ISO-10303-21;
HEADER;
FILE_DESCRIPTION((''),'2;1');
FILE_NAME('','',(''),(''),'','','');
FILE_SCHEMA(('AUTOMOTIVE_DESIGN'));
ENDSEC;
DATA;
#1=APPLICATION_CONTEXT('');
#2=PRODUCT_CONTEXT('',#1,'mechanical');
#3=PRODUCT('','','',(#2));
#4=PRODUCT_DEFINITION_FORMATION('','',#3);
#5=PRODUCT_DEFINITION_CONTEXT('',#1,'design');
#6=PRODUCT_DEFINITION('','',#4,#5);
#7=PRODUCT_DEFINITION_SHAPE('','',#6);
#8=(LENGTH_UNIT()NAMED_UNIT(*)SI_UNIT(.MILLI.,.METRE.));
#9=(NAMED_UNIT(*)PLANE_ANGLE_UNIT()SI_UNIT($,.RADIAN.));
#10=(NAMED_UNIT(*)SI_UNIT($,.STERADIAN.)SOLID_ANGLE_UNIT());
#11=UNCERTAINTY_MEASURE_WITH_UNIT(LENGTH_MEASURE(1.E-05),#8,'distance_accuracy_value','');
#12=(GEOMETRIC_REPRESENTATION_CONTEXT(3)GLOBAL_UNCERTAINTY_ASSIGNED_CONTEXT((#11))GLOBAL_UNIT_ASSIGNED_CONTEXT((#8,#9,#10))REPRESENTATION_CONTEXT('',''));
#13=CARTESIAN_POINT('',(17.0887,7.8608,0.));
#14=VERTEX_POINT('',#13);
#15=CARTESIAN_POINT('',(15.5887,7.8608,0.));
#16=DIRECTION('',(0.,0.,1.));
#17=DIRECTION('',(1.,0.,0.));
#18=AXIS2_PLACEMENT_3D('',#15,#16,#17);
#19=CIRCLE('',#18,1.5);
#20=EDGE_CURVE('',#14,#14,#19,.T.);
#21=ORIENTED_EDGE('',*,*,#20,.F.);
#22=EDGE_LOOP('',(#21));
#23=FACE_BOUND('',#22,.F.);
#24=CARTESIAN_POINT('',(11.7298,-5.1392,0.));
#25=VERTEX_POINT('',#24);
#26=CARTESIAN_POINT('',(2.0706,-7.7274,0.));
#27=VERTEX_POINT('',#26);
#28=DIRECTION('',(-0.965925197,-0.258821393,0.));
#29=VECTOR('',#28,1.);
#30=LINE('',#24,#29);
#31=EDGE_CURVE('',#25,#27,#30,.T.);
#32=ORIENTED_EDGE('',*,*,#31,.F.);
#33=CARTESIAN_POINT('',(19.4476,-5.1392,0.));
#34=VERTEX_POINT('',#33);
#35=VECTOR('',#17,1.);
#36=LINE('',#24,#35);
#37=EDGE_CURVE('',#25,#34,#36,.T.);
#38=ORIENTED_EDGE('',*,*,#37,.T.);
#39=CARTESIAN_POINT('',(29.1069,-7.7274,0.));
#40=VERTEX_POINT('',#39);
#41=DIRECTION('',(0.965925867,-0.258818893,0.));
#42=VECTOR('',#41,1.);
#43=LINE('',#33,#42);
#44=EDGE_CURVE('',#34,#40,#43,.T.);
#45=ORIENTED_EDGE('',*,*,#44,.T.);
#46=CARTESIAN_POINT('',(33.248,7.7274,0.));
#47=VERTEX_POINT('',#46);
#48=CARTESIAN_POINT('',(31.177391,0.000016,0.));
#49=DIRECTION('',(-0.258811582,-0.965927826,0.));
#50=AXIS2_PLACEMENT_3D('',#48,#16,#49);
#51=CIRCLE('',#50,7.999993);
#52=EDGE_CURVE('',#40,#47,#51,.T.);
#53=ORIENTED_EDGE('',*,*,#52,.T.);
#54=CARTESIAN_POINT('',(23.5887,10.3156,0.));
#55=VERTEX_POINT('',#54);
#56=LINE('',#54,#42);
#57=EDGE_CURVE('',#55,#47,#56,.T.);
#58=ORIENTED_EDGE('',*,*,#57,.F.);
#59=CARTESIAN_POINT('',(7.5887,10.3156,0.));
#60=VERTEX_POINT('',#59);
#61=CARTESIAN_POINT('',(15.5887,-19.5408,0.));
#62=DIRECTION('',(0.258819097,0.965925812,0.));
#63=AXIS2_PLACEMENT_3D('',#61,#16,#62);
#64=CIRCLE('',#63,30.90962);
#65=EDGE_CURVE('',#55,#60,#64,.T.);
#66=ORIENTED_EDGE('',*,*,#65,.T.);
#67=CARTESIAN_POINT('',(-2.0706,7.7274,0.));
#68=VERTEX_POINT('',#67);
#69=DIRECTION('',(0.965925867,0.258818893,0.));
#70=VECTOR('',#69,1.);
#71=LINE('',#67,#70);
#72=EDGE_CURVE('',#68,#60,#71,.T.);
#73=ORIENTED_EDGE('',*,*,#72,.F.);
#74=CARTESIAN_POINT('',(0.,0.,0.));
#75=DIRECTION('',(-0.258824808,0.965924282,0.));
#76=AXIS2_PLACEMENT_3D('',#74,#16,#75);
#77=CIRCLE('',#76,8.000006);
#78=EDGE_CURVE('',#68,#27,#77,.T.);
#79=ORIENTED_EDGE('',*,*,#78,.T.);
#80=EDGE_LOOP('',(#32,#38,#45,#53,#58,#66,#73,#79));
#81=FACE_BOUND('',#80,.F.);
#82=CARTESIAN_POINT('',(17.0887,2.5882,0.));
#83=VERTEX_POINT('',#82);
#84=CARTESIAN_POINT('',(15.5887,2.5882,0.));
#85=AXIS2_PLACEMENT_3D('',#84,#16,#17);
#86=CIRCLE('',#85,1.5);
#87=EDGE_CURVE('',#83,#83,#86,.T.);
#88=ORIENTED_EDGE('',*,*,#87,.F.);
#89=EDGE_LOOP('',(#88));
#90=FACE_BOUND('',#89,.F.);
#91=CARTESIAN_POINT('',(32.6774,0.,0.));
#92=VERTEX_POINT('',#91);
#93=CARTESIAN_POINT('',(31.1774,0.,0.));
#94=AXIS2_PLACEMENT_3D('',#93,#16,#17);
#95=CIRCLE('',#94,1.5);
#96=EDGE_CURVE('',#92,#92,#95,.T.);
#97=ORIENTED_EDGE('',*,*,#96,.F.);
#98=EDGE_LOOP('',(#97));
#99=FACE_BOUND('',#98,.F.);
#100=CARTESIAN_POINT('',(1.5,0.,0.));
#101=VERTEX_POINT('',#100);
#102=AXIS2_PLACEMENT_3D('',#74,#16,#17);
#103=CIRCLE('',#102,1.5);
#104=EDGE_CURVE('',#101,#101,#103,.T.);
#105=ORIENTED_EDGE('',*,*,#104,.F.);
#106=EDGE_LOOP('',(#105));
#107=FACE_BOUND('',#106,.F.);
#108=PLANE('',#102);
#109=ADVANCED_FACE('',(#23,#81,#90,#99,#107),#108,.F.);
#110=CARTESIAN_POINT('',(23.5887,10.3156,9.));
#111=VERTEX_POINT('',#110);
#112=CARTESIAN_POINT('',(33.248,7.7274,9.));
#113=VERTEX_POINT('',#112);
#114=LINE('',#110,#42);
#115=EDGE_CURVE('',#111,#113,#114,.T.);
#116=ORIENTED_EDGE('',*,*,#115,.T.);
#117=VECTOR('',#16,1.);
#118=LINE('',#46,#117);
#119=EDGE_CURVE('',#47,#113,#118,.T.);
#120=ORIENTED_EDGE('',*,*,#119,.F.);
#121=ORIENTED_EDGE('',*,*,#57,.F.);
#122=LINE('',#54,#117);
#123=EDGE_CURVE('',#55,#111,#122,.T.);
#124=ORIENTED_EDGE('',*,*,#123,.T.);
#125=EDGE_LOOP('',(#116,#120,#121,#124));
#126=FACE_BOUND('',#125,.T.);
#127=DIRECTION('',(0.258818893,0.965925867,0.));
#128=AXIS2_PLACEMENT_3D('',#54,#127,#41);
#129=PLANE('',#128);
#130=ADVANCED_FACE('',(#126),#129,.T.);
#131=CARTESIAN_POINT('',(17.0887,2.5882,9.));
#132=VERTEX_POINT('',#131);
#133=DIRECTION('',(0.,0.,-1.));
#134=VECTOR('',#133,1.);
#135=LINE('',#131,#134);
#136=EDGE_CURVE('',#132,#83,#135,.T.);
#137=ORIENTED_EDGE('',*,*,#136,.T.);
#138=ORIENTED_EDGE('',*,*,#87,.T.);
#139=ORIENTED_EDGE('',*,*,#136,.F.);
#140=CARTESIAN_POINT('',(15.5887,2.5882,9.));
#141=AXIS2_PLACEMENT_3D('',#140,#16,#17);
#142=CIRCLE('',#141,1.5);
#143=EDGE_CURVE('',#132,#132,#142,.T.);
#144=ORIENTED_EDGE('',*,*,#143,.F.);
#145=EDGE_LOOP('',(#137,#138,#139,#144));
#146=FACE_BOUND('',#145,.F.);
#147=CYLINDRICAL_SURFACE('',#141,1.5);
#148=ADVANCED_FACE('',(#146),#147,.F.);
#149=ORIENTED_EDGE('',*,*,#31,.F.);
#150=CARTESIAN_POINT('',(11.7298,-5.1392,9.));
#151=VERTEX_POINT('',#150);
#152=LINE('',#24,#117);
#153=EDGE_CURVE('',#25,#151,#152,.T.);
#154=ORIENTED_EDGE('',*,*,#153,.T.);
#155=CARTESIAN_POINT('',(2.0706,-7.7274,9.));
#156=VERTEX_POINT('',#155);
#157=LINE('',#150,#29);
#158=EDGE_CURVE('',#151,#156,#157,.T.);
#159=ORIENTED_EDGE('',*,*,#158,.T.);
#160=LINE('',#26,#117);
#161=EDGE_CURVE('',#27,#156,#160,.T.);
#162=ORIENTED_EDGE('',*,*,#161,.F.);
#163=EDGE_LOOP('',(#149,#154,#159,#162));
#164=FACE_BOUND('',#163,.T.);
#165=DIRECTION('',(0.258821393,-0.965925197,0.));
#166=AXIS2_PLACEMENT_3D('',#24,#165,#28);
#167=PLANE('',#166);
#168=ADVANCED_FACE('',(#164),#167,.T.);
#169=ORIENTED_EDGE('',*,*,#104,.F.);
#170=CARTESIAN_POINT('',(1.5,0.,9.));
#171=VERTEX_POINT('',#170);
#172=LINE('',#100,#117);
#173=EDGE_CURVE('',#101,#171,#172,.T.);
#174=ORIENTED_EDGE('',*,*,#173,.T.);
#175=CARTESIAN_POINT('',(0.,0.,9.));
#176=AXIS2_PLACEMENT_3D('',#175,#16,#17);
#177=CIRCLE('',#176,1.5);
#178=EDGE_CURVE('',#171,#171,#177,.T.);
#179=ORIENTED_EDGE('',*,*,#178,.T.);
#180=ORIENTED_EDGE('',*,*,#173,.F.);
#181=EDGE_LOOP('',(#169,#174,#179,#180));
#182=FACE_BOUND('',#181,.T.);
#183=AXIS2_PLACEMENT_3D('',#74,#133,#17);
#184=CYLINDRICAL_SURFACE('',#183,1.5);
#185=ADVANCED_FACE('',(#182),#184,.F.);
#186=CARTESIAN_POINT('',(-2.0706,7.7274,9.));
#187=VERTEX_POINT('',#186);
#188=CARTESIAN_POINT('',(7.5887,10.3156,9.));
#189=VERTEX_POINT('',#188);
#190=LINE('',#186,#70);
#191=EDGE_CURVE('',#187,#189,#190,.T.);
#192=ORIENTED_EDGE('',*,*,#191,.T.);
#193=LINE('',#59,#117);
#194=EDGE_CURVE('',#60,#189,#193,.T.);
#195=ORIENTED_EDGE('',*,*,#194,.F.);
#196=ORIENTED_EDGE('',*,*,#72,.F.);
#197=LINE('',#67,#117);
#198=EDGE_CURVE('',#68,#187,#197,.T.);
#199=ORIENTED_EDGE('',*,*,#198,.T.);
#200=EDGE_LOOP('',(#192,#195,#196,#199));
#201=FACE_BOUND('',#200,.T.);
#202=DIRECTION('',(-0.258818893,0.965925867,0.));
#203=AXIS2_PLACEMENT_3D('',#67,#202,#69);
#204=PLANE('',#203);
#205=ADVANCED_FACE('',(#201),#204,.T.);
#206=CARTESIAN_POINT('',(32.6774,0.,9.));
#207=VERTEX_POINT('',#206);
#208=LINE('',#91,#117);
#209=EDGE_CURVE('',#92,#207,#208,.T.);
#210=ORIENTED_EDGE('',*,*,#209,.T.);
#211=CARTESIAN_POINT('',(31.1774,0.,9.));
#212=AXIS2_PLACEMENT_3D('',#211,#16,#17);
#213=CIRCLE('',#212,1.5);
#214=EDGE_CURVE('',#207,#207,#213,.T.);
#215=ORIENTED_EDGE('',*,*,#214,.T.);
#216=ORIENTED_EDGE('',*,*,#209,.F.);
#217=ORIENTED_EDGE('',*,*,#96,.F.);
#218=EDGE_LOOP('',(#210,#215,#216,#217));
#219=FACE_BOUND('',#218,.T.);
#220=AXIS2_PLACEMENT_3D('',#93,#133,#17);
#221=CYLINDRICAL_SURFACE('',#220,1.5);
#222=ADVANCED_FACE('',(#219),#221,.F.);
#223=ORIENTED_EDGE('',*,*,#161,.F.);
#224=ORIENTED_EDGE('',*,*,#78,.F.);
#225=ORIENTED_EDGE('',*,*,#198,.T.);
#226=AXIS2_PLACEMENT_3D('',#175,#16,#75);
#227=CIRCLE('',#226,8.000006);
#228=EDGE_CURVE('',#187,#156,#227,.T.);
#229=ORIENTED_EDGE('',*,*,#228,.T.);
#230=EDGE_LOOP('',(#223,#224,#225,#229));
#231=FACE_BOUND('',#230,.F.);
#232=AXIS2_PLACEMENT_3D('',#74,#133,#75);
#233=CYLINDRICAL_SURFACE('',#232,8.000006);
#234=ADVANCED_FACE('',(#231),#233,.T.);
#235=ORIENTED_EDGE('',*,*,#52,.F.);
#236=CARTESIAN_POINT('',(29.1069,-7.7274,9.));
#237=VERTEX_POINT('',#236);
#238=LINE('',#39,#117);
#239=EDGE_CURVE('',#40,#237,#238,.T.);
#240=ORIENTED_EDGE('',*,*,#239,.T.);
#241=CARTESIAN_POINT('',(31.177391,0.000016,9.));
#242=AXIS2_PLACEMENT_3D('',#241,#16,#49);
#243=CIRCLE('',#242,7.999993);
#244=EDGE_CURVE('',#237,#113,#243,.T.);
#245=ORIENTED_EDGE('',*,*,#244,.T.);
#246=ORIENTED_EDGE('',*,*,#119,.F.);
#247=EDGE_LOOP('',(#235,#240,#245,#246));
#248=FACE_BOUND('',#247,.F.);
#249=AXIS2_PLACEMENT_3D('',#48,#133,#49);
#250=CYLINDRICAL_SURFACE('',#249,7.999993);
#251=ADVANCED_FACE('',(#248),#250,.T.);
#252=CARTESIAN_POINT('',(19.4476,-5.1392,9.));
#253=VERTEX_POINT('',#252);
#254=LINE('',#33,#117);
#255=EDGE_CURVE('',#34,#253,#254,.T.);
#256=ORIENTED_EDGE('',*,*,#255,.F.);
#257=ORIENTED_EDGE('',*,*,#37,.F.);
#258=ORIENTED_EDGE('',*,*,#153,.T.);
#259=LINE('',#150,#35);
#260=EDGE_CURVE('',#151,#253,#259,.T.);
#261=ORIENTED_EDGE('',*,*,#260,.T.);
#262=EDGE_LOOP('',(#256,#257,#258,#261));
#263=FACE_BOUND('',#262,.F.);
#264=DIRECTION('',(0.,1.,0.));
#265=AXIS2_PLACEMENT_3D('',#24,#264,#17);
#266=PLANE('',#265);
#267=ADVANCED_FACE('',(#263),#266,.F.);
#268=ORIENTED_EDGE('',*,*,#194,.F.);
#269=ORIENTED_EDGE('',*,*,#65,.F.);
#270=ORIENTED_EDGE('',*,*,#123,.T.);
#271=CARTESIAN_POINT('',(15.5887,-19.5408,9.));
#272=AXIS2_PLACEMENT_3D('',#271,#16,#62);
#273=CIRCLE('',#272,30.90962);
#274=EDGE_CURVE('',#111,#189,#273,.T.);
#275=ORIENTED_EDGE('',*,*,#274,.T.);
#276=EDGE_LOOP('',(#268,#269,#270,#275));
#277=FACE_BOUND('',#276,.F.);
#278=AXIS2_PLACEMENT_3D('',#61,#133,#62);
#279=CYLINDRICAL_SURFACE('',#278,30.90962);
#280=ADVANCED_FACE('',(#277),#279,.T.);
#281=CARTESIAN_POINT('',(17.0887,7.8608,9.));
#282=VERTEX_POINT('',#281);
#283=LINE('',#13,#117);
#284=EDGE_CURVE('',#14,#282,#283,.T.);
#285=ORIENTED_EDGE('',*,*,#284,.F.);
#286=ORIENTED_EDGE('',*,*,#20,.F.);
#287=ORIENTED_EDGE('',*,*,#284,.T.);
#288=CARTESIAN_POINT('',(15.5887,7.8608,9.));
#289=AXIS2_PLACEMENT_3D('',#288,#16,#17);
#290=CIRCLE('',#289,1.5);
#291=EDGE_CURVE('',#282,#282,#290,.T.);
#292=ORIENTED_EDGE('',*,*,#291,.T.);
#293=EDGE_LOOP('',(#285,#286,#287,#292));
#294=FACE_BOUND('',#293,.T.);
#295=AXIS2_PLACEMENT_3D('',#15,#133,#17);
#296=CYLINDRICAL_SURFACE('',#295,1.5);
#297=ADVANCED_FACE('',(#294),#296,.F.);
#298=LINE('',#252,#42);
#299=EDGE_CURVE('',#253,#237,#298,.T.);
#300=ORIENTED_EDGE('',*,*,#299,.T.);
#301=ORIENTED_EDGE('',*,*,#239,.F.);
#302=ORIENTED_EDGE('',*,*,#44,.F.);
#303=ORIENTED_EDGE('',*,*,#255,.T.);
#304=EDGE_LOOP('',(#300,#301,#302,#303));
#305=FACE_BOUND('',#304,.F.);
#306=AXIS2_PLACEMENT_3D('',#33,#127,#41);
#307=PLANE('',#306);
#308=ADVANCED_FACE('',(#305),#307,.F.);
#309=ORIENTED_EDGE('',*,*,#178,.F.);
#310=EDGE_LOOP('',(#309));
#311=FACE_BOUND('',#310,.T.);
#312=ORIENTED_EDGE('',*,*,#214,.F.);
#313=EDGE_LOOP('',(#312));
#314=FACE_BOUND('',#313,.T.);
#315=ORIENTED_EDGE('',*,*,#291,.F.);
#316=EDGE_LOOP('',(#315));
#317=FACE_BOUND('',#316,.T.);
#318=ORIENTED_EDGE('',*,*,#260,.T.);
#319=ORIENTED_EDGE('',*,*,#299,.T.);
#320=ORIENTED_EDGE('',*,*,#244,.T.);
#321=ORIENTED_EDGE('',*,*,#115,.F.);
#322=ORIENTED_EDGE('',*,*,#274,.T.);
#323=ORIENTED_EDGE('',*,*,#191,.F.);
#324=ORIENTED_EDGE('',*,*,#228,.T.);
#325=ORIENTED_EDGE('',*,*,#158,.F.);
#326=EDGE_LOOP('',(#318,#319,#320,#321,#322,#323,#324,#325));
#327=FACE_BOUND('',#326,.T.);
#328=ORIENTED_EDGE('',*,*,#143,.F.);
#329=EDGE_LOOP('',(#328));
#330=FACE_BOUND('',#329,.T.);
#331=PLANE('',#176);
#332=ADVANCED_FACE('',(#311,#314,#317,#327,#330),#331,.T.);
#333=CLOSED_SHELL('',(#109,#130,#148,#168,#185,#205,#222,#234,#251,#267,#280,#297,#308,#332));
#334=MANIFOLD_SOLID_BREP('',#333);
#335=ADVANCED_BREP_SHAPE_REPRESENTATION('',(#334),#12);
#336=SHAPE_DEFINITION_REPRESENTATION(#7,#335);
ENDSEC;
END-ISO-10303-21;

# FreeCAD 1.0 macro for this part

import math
import FreeCAD as App
import Part
import Sketcher

V = App.Vector
Q = App.Units.Quantity

doc = App.newDocument("Part")
body = doc.addObject("PartDesign::Body", "Body")

sketch1 = body.newObject("Sketcher::SketchObject", "Sketch")
sketch1.AttachmentSupport = (doc.getObject("XY_Plane"), [""])
sketch1.MapMode = "FlatFace"
sketch1.addGeometry([
    Part.LineSegment(V(11.7298, -5.1392, 0), V(19.4476, -5.1392, 0)),
    Part.LineSegment(V(19.4476, -5.1392, 0), V(29.1069, -7.7274, 0)),
    Part.ArcOfCircle(Part.Circle(V(31.1774, 0, 0), V(0, 0, 1), 8), math.radians(-104.99965), math.radians(74.999658)),
    Part.LineSegment(V(33.248, 7.7274, 0), V(23.5887, 10.3156, 0)),
    Part.ArcOfCircle(Part.Circle(V(15.5887, -19.5408, 0), V(0, 0, 1), 30.90962), math.radians(74.999997), math.radians(105.000003)),
    Part.LineSegment(V(7.5887, 10.3156, 0), V(-2.0706, 7.7274, 0)),
    Part.ArcOfCircle(Part.Circle(V(0, 0, 0), V(0, 0, 1), 8.000006), math.radians(105.000342), math.radians(285.000342)),
    Part.LineSegment(V(2.0706, -7.7274, 0), V(11.7298, -5.1392, 0)),
    Part.Circle(V(0, 0, 0), V(0, 0, 1), 1.5),
    Part.Circle(V(31.1774, 0, 0), V(0, 0, 1), 1.5),
    Part.Circle(V(15.5887, 7.8608, 0), V(0, 0, 1), 1.5),
], False)
sketch1.addConstraint([
    Sketcher.Constraint("Coincident", 0, 2, 1, 1),
    Sketcher.Constraint("Tangent", 1, 2, 2, 1),
    Sketcher.Constraint("Tangent", 2, 2, 3, 1),
    Sketcher.Constraint("Tangent", 3, 2, 4, 1),
    Sketcher.Constraint("Tangent", 4, 2, 5, 1),
    Sketcher.Constraint("Tangent", 5, 2, 6, 1),
    Sketcher.Constraint("Tangent", 6, 2, 7, 1),
    Sketcher.Constraint("Coincident", 7, 2, 0, 1),
    Sketcher.Constraint("Horizontal", 0),
    Sketcher.Constraint("Coincident", 6, 3, -1, 1),
    Sketcher.Constraint("Coincident", 8, 3, -1, 1),
    Sketcher.Constraint("Coincident", 9, 3, 2, 3),
    Sketcher.Constraint("Equal", 2, 6),
    Sketcher.Constraint("Equal", 8, 9),
    Sketcher.Constraint("Equal", 9, 10),
    Sketcher.Constraint("PointOnObject", 2, 3, -1),
    Sketcher.Constraint("Parallel", 1, 3),
    Sketcher.Constraint("Parallel", 5, 7),
    Sketcher.Constraint("Horizontal", 3, 2, 4, 2),
    Sketcher.Constraint("Vertical", 4, 3, 10, 3),
    Sketcher.Constraint("Equal", 1, 3),
    Sketcher.Constraint("Diameter", 8, 3.0),
    Sketcher.Constraint("Radius", 2, 8.0),
    Sketcher.Constraint("Distance", 1, 10.0),
    Sketcher.Constraint("DistanceY", 0, 2, 10, 3, 13.0),
    Sketcher.Constraint("DistanceX", 4, 2, 3, 2, 16.0),
    Sketcher.Constraint("Angle", 1, Q("-15 deg")),
])
pad1 = body.newObject("PartDesign::Pad", "Pad")
pad1.Profile = sketch1
pad1.Length = 9

sketch2 = body.newObject("Sketcher::SketchObject", "Sketch001")
sketch2.AttachmentSupport = (doc.getObject("XY_Plane"), [""])
sketch2.MapMode = "FlatFace"
sketch2.AttachmentOffset = App.Placement(V(0, 0, 9), App.Rotation())
sketch2.addGeometry(Part.Circle(V(15.5887, 2.5882, 0), V(0, 0, 1), 1.5), False)
sketch2.addConstraint([
    Sketcher.Constraint("Diameter", 0, 3.0),
    Sketcher.Constraint("DistanceX", -1, 1, 0, 3, 15.5887),
    Sketcher.Constraint("DistanceY", -1, 1, 0, 3, 2.5882),
])
pocket1 = body.newObject("PartDesign::Pocket", "Pocket")
pocket1.Profile = sketch2
pocket1.Type = "ThroughAll"

doc.recompute()
